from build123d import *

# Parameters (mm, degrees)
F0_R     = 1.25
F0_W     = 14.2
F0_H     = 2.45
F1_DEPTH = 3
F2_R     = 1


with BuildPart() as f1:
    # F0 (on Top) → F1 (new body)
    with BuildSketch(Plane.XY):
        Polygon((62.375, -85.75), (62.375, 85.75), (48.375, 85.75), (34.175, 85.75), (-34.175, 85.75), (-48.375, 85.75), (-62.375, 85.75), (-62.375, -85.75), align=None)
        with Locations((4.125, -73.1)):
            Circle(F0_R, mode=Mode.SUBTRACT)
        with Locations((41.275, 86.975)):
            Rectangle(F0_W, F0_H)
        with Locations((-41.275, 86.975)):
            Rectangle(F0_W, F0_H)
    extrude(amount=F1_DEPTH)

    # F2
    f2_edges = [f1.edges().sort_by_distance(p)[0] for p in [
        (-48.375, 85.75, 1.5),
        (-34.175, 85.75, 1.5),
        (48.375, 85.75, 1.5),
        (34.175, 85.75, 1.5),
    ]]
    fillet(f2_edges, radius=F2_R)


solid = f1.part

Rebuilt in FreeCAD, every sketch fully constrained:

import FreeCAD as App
import Part
import Sketcher
from FreeCAD import Vector


def edges_at(feature, points):
    """Names of the edges that pass closest to the given points."""
    edges = feature.Shape.Edges
    near = lambda p: min(range(len(edges)), key=lambda i: edges[i].distToShape(Part.Vertex(*p))[0])
    return sorted({f"Edge{near(p) + 1}" for p in points})


def add_polygon(sketch, points):
    """Adds a closed chain of lines whose ends are joined by coincident constraints."""
    first, n = sketch.GeometryCount, len(points)
    for a, b in zip(points, points[1:] + points[:1]):
        sketch.addGeometry(Part.LineSegment(App.Vector(*a, 0), App.Vector(*b, 0)), False)
    for i in range(n):
        sketch.addConstraint(Sketcher.Constraint("Coincident", first + i, 2, first + (i + 1) % n, 1))

doc = App.newDocument("Part")
body = doc.addObject("PartDesign::Body", "Body")

sketch1 = doc.addObject("Sketcher::SketchObject", "Sketch")
body.addObject(sketch1)
sketch1.AttachmentSupport = (doc.XY_Plane, [""])
sketch1.MapMode = "FlatFace"
add_polygon(sketch1, [(-62.4, -85.8), (62.4, -85.8), (62.4, 85.8), (48.4, 85.8), (48.4, 88.2), (34.2, 88.2), (34.2, 85.8), (-34.2, 85.8), (-34.2, 88.2), (-48.4, 88.2), (-48.4, 85.8), (-62.4, 85.8)])
sketch1.addGeometry(Part.Circle(Vector(4.1, -73.1, 0), Vector(0, 0, 1), 1.2), False)
sketch1.addConstraint(Sketcher.Constraint("Horizontal", 0))
sketch1.addConstraint(Sketcher.Constraint("Vertical", 1))
sketch1.addConstraint(Sketcher.Constraint("Horizontal", 2))
sketch1.addConstraint(Sketcher.Constraint("Vertical", 3))
sketch1.addConstraint(Sketcher.Constraint("Horizontal", 4))
sketch1.addConstraint(Sketcher.Constraint("Vertical", 5))
sketch1.addConstraint(Sketcher.Constraint("Horizontal", 6))
sketch1.addConstraint(Sketcher.Constraint("Vertical", 7))
sketch1.addConstraint(Sketcher.Constraint("Horizontal", 8))
sketch1.addConstraint(Sketcher.Constraint("Vertical", 9))
sketch1.addConstraint(Sketcher.Constraint("Horizontal", 10))
sketch1.addConstraint(Sketcher.Constraint("Vertical", 11))
sketch1.addConstraint(Sketcher.Constraint("Symmetric", 0, 2, 10, 2, -1, 1))
sketch1.addConstraint(Sketcher.Constraint("Symmetric", 4, 2, 7, 2, -2))
sketch1.addConstraint(Sketcher.Constraint("Symmetric", 2, 2, 9, 2, -2))
sketch1.addConstraint(Sketcher.Constraint("Horizontal", 2, 2, 5, 2))
sketch1.addConstraint(Sketcher.Constraint("Diameter", 12, 2.5))
sketch1.addConstraint(Sketcher.Constraint("DistanceX", 2, 2, 2, 1, 14.0))
sketch1.addConstraint(Sketcher.Constraint("DistanceX", 4, 2, 4, 1, 14.2))
sketch1.addConstraint(Sketcher.Constraint("DistanceY", 1, 1, 1, 2, 171.5))
sketch1.addConstraint(Sketcher.Constraint("DistanceX", 0, 1, 0, 2, 124.75))
sketch1.addConstraint(Sketcher.Constraint("DistanceY", 3, 1, 3, 2, 2.45))
sketch1.addConstraint(Sketcher.Constraint("DistanceY", 12, 3, -1, 1, 73.1))
sketch1.addConstraint(Sketcher.Constraint("DistanceX", 11, 2, 12, 3, 66.5))
pad1 = doc.addObject("PartDesign::Pad", "Pad")
body.addObject(pad1)
pad1.Profile = sketch1
pad1.Length = 3
doc.recompute()

fillet = doc.addObject("PartDesign::Fillet", "Fillet")
body.addObject(fillet)
fillet.Base = (pad1, edges_at(pad1, [
    (-48.375, 85.75, 1.5),
    (-34.175, 85.75, 1.5),
    (48.375, 85.75, 1.5),
    (34.175, 85.75, 1.5),
]))
fillet.Radius = 1

doc.recompute()
